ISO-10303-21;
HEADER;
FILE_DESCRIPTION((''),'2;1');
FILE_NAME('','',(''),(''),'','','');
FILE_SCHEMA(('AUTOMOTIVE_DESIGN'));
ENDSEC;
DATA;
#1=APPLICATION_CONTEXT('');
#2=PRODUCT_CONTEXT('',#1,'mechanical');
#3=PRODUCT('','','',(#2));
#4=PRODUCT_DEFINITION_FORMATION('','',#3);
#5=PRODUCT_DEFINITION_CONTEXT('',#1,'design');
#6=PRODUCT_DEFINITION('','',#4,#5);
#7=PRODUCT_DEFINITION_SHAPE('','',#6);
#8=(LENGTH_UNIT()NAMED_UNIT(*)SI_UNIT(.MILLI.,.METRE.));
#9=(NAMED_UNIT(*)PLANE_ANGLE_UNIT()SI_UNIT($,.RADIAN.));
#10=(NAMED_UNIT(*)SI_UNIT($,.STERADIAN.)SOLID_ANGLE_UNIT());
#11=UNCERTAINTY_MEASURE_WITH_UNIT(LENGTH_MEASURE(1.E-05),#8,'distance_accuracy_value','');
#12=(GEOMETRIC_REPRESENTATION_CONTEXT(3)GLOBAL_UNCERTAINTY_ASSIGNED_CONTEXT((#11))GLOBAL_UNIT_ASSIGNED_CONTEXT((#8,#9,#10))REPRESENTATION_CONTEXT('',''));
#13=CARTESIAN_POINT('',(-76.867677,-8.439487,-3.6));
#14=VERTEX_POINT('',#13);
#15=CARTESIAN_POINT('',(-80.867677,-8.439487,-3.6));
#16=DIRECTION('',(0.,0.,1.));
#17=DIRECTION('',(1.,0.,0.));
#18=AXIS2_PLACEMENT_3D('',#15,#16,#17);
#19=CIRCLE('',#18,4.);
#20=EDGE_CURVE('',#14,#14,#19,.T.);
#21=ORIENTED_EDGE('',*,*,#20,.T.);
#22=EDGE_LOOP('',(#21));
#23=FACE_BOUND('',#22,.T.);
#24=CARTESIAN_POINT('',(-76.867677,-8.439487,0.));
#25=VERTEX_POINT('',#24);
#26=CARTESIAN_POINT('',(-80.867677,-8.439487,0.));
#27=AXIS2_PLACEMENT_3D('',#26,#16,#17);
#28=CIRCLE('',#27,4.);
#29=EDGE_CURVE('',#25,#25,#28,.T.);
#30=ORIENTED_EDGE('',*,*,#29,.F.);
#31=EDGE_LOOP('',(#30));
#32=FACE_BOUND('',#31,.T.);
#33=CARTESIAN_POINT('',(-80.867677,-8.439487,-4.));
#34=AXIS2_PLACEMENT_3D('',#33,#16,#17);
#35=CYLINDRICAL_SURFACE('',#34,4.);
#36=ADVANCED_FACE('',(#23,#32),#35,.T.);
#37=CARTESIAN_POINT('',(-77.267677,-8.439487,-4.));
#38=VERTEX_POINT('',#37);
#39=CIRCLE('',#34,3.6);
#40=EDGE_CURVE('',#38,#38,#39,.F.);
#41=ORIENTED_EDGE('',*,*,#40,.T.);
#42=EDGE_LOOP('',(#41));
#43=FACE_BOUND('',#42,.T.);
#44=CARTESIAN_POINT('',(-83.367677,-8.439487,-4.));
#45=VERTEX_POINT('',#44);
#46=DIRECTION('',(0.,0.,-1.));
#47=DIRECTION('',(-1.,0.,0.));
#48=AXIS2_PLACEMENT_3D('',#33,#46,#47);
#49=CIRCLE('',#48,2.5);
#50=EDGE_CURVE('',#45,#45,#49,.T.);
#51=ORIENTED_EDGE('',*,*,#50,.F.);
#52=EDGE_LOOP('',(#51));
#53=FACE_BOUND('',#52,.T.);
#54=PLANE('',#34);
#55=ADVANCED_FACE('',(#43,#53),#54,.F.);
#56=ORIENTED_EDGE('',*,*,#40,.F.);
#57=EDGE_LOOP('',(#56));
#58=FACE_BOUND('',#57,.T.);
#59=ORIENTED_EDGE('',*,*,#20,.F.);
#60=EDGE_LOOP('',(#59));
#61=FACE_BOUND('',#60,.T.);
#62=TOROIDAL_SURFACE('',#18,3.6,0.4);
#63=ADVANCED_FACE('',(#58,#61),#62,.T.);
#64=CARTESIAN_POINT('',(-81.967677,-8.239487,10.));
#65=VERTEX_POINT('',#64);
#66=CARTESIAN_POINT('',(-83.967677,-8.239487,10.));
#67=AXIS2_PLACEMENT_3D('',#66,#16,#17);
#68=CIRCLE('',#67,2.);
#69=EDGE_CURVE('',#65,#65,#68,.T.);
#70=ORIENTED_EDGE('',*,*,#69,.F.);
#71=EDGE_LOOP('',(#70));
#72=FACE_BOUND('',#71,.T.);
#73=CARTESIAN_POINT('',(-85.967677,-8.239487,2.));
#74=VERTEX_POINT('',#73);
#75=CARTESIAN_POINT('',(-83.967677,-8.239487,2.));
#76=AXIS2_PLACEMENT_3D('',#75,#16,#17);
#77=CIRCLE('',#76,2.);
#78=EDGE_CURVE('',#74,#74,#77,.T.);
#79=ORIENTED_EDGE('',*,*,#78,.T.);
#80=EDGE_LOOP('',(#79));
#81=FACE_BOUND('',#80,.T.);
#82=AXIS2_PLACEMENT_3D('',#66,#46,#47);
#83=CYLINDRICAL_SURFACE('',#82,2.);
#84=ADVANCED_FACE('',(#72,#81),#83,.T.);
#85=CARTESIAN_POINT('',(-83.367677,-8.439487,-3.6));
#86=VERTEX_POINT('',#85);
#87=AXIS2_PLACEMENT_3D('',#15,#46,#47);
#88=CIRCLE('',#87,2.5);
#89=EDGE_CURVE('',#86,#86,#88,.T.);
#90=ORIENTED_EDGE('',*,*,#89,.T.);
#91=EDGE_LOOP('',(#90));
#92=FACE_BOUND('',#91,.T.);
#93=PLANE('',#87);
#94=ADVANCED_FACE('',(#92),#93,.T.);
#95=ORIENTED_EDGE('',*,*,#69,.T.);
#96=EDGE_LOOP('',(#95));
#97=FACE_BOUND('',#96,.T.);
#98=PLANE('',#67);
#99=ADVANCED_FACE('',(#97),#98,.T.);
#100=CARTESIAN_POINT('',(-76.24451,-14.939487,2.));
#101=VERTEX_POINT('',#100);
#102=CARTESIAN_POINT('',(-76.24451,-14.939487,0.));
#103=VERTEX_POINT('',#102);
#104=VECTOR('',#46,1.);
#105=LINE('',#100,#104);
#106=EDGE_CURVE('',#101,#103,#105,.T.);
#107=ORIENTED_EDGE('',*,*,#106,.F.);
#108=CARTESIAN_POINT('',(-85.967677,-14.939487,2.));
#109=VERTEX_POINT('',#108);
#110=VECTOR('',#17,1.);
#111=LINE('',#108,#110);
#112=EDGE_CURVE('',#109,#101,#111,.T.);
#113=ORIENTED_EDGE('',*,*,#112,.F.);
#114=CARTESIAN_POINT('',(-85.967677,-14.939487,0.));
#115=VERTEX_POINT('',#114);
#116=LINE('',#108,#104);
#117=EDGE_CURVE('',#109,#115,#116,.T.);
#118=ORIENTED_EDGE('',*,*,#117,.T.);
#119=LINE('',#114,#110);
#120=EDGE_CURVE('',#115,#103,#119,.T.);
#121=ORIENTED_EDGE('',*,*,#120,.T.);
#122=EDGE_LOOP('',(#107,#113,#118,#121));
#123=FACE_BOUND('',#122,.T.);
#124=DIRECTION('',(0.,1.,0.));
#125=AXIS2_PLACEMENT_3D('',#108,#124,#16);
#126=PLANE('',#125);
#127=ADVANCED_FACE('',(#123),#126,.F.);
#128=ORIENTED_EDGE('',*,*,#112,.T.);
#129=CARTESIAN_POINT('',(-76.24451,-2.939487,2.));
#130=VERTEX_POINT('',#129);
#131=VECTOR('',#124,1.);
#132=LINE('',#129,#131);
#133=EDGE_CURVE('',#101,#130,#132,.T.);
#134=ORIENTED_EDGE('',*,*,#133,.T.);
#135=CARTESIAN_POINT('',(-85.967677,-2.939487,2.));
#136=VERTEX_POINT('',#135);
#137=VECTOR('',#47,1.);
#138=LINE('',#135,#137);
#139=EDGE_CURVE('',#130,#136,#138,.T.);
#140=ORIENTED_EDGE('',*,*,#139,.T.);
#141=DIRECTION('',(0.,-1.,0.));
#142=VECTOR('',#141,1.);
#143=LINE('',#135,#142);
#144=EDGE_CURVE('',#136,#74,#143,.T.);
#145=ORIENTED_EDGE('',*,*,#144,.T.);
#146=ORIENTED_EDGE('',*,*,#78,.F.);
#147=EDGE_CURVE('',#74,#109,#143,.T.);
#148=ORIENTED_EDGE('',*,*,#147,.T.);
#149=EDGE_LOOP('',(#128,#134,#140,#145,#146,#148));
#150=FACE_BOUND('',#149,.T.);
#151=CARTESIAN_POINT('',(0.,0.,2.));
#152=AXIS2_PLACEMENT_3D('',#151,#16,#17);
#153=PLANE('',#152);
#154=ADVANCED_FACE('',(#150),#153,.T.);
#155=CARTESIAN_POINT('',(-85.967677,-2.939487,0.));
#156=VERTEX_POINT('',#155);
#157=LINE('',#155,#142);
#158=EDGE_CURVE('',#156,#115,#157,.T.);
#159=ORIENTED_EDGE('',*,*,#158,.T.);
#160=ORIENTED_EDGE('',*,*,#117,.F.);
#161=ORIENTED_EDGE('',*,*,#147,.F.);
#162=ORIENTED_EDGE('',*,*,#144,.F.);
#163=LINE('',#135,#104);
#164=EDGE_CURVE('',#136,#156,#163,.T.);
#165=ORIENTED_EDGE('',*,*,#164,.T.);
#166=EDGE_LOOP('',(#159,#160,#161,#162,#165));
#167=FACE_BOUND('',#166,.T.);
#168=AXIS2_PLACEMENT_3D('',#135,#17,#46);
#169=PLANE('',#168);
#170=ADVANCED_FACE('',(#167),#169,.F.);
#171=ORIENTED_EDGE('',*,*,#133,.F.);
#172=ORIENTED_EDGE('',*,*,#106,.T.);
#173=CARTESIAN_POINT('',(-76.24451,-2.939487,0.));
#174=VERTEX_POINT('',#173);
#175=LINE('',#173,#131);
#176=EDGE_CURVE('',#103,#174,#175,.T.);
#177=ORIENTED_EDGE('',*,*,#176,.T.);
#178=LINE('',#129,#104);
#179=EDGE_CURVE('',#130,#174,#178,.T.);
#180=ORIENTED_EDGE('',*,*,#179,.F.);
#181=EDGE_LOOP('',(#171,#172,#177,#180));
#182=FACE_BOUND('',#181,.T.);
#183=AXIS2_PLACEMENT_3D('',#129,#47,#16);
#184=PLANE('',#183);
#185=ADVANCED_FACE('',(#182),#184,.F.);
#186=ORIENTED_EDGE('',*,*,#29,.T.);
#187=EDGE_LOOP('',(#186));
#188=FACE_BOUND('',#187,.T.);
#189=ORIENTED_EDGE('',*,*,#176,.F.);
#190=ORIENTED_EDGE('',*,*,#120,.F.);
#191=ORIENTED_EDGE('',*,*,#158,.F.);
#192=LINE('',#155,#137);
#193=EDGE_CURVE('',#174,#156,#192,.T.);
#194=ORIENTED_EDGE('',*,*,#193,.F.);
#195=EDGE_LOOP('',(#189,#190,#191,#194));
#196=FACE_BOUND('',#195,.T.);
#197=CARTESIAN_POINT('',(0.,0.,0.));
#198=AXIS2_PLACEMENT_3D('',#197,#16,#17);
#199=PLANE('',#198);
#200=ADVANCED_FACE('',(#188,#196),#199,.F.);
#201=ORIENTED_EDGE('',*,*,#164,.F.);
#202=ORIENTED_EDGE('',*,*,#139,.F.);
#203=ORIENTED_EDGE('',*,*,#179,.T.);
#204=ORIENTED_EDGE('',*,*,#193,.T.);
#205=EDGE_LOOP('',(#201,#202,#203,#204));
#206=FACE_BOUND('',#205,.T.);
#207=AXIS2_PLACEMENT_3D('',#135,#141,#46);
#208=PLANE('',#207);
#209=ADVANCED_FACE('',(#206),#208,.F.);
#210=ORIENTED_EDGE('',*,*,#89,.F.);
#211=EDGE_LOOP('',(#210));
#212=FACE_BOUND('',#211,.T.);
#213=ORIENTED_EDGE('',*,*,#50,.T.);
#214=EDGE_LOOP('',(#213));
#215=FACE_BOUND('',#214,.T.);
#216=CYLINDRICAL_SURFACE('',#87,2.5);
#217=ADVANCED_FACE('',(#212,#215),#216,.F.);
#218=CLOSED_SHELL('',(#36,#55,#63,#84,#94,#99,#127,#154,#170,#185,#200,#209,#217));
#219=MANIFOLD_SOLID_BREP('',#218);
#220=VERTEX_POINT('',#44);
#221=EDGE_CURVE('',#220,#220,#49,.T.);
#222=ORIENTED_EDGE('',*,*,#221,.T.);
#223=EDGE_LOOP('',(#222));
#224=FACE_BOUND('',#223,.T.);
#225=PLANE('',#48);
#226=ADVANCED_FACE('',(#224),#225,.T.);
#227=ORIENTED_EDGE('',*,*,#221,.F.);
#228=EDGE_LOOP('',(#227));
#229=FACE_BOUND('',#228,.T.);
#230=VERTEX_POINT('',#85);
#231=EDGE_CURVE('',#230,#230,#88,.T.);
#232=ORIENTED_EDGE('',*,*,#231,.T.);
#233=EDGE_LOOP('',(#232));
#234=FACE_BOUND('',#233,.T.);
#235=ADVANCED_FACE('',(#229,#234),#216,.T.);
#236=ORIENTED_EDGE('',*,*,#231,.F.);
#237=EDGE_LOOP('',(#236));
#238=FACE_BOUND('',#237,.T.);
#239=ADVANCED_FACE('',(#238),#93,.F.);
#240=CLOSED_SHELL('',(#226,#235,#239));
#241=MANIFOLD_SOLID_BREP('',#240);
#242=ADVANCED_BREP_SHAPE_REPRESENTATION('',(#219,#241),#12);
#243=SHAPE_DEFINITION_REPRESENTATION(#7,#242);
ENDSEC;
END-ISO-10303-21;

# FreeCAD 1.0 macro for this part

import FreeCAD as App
import Part
import Sketcher
from FreeCAD import Vector
Q = App.Units.Quantity


def edges_at(feature, points):
    """Names of the edges that pass closest to the given points."""
    edges = feature.Shape.Edges
    near = lambda p: min(range(len(edges)), key=lambda i: edges[i].distToShape(Part.Vertex(*p))[0])
    return sorted({f"Edge{near(p) + 1}" for p in points})


def add_polygon(sketch, points):
    """Adds a closed chain of lines whose ends are joined by coincident constraints."""
    first, n = sketch.GeometryCount, len(points)
    for a, b in zip(points, points[1:] + points[:1]):
        sketch.addGeometry(Part.LineSegment(App.Vector(*a, 0), App.Vector(*b, 0)), False)
    for i in range(n):
        sketch.addConstraint(Sketcher.Constraint("Coincident", first + i, 2, first + (i + 1) % n, 1))

doc = App.newDocument("Part")
body = doc.addObject("PartDesign::Body", "Body")

# Sketch on XY plane
sketch1 = body.newObject("Sketcher::SketchObject", "Sketch")
sketch1.AttachmentSupport = (doc.getObject("XY_Plane"), [""])
sketch1.MapMode = "FlatFace"
sketch1.addGeometry(Part.Circle(Vector(-80.9, -8.4, 0), Vector(0, 0, 1), 4), False)
sketch1.addConstraint(Sketcher.Constraint("Diameter", 0, Q("8 mm")))
sketch1.addConstraint(Sketcher.Constraint("DistanceX", 0, 3, -1, 1, Q("80.867677 mm")))
sketch1.addConstraint(Sketcher.Constraint("DistanceY", 0, 3, -1, 1, Q("8.439487 mm")))
pad1 = body.newObject("PartDesign::Pad", "Pad")
pad1.Profile = sketch1
pad1.Length = 4
pad1.Reversed = True

# Sketch on XY plane
sketch2 = body.newObject("Sketcher::SketchObject", "Sketch001")
sketch2.AttachmentSupport = (doc.getObject("XY_Plane"), [""])
sketch2.MapMode = "FlatFace"
add_polygon(sketch2, [(-86, -3), (-86, -15), (-76, -15), (-76, -3)])  # lines 0-3
sketch2.addConstraint(Sketcher.Constraint("Vertical", 0))
sketch2.addConstraint(Sketcher.Constraint("Horizontal", 1))
sketch2.addConstraint(Sketcher.Constraint("Vertical", 2))
sketch2.addConstraint(Sketcher.Constraint("Horizontal", 3))
sketch2.addConstraint(Sketcher.Constraint("DistanceY", 0, 2, 0, 1, Q("12 mm")))
sketch2.addConstraint(Sketcher.Constraint("DistanceX", 1, 1, 1, 2, Q("9.723167 mm")))
sketch2.addConstraint(Sketcher.Constraint("DistanceX", 1, 2, -1, 1, Q("76.24451 mm")))
sketch2.addConstraint(Sketcher.Constraint("DistanceY", 0, 2, -1, 1, Q("14.939487 mm")))
pad2 = body.newObject("PartDesign::Pad", "Pad001")
pad2.Profile = sketch2
pad2.Length = 2
doc.recompute()

fillet = body.newObject("PartDesign::Fillet", "Fillet")
fillet.Base = (pad2, edges_at(pad2, [(-84.868, -8.439, -4)]))
fillet.Radius = 0.4

# Sketch on XY plane
sketch3 = body.newObject("Sketcher::SketchObject", "Sketch002")
sketch3.AttachmentSupport = (doc.getObject("XY_Plane"), [""])
sketch3.MapMode = "FlatFace"
sketch3.AttachmentOffset = App.Placement(Vector(0, 0, 2), App.Rotation())
sketch3.addGeometry(Part.Circle(Vector(-84, -8.2, 0), Vector(0, 0, 1), 2), False)
sketch3.addConstraint(Sketcher.Constraint("Diameter", 0, Q("4 mm")))
sketch3.addConstraint(Sketcher.Constraint("DistanceX", 0, 3, -1, 1, Q("83.967677 mm")))
sketch3.addConstraint(Sketcher.Constraint("DistanceY", 0, 3, -1, 1, Q("8.239487 mm")))
pad3 = body.newObject("PartDesign::Pad", "Pad002")
pad3.Profile = sketch3
pad3.Length = 8

# Sketch on XY plane
sketch4 = body.newObject("Sketcher::SketchObject", "Sketch003")
sketch4.AttachmentSupport = (doc.getObject("XY_Plane"), [""])
sketch4.MapMode = "FlatFace"
sketch4.AttachmentOffset = App.Placement(Vector(0, 0, -4), App.Rotation())
sketch4.addGeometry(Part.Circle(Vector(-80.9, -8.4, 0), Vector(0, 0, 1), 2.5), False)
sketch4.addConstraint(Sketcher.Constraint("Diameter", 0, Q("5 mm")))
sketch4.addConstraint(Sketcher.Constraint("DistanceX", 0, 3, -1, 1, Q("80.867677 mm")))
sketch4.addConstraint(Sketcher.Constraint("DistanceY", 0, 3, -1, 1, Q("8.439487 mm")))
pocket1 = body.newObject("PartDesign::Pocket", "Pocket")
pocket1.Profile = sketch4
pocket1.Length = 0.4
pocket1.Reversed = True
body2 = doc.addObject("PartDesign::Body", "Body001")

# Sketch on XY plane
sketch5 = body2.newObject("Sketcher::SketchObject", "Sketch004")
sketch5.AttachmentSupport = (doc.getObject("XY_Plane001"), [""])
sketch5.MapMode = "FlatFace"
sketch5.AttachmentOffset = App.Placement(Vector(0, 0, -4), App.Rotation())
sketch5.addGeometry(Part.Circle(Vector(-80.9, -8.4, 0), Vector(0, 0, 1), 2.5), False)
sketch5.addConstraint(Sketcher.Constraint("Diameter", 0, Q("5 mm")))
sketch5.addConstraint(Sketcher.Constraint("DistanceX", 0, 3, -1, 1, Q("80.867677 mm")))
sketch5.addConstraint(Sketcher.Constraint("DistanceY", 0, 3, -1, 1, Q("8.439487 mm")))
pad4 = body2.newObject("PartDesign::Pad", "Pad003")
pad4.Profile = sketch5
pad4.Length = 0.4

doc.recompute()
